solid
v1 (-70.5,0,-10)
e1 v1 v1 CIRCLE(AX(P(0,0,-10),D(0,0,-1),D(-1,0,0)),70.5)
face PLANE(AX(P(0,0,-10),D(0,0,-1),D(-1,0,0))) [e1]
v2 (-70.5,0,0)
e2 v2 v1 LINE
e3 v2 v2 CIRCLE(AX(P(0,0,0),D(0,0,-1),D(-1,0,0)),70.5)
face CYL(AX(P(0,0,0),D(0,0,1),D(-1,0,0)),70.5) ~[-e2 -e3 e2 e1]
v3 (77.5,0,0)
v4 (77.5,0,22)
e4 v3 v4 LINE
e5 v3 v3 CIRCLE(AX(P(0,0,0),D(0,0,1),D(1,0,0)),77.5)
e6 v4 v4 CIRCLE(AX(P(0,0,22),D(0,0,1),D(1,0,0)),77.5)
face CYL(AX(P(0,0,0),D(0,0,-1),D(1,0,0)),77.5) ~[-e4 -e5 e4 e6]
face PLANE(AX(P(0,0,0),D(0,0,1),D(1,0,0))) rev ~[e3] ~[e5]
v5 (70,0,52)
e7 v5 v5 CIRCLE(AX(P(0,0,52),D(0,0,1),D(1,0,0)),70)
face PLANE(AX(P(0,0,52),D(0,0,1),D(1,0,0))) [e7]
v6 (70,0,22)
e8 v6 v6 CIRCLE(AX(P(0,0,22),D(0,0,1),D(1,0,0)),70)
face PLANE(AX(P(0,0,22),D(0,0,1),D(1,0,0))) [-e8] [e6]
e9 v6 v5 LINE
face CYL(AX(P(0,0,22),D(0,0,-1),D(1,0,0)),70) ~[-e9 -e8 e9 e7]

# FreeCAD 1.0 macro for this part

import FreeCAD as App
import Part
import Sketcher

doc = App.newDocument("Part")
body = doc.addObject("PartDesign::Body", "Body")

# Sketch on XY plane
sketch1 = body.newObject("Sketcher::SketchObject", "Sketch")
sketch1.AttachmentSupport = (doc.getObject("XY_Plane"), [""])
sketch1.MapMode = "FlatFace"
sketch1.addGeometry(Part.Circle(App.Vector(0, 0, 0), App.Vector(0, 0, 1), 78), False)
sketch1.addConstraint(Sketcher.Constraint("Coincident", 0, 3, -1, 1))
sketch1.addConstraint(Sketcher.Constraint("Diameter", 0, 155.0))
pad1 = body.newObject("PartDesign::Pad", "Pad")
pad1.Profile = sketch1
pad1.Length = 22

# Sketch on XY plane
sketch2 = body.newObject("Sketcher::SketchObject", "Sketch001")
sketch2.AttachmentSupport = (doc.getObject("XY_Plane"), [""])
sketch2.MapMode = "FlatFace"
sketch2.AttachmentOffset = App.Placement(App.Vector(0, 0, 22), App.Rotation())
sketch2.addGeometry(Part.Circle(App.Vector(0, 0, 0), App.Vector(0, 0, 1), 70), False)
sketch2.addConstraint(Sketcher.Constraint("Coincident", 0, 3, -1, 1))
sketch2.addConstraint(Sketcher.Constraint("Diameter", 0, 140.0))
pad2 = body.newObject("PartDesign::Pad", "Pad001")
pad2.Profile = sketch2
pad2.Length = 30

# Sketch on XY plane
sketch3 = body.newObject("Sketcher::SketchObject", "Sketch002")
sketch3.AttachmentSupport = (doc.getObject("XY_Plane"), [""])
sketch3.MapMode = "FlatFace"
sketch3.addGeometry(Part.Circle(App.Vector(0, 0, 0), App.Vector(0, 0, 1), 70), False)
sketch3.addConstraint(Sketcher.Constraint("Coincident", 0, 3, -1, 1))
sketch3.addConstraint(Sketcher.Constraint("Diameter", 0, 141.0))
pad3 = body.newObject("PartDesign::Pad", "Pad002")
pad3.Profile = sketch3
pad3.Length = 10
pad3.Reversed = True

doc.recompute()
